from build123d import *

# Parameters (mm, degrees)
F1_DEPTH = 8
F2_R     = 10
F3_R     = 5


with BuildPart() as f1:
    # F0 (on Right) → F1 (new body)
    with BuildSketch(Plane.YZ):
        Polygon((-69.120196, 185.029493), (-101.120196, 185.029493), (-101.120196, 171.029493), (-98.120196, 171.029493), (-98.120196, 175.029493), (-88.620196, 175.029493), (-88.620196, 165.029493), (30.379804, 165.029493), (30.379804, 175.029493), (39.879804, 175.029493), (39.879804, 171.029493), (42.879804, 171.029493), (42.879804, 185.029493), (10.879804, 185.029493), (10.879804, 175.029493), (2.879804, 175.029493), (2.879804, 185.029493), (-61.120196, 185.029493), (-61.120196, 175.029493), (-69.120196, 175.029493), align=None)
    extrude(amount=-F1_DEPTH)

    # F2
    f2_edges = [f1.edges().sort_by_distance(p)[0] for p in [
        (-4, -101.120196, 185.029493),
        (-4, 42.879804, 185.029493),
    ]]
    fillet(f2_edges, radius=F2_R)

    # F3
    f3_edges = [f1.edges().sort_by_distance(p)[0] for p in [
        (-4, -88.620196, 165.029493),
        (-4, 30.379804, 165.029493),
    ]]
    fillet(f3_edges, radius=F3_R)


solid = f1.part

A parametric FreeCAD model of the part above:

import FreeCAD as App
import Part
import Sketcher


def edges_at(feature, points):
    """Names of the edges that pass closest to the given points."""
    edges = feature.Shape.Edges
    near = lambda p: min(range(len(edges)), key=lambda i: edges[i].distToShape(Part.Vertex(*p))[0])
    return sorted({f"Edge{near(p) + 1}" for p in points})


def add_polygon(sketch, points):
    """Adds a closed chain of lines whose ends are joined by coincident constraints."""
    first, n = sketch.GeometryCount, len(points)
    for a, b in zip(points, points[1:] + points[:1]):
        sketch.addGeometry(Part.LineSegment(App.Vector(*a, 0), App.Vector(*b, 0)), False)
    for i in range(n):
        sketch.addConstraint(Sketcher.Constraint("Coincident", first + i, 2, first + (i + 1) % n, 1))

doc = App.newDocument("Part")
body = doc.addObject("PartDesign::Body", "Body")

sketch1 = body.newObject("Sketcher::SketchObject", "Sketch")
sketch1.AttachmentSupport = (doc.getObject("YZ_Plane"), [""])
sketch1.MapMode = "FlatFace"
add_polygon(sketch1, [(-69.1, 185), (-101.1, 185), (-101.1, 171), (-98.1, 171), (-98.1, 175), (-88.6, 175), (-88.6, 165), (30.4, 165), (30.4, 175), (39.9, 175), (39.9, 171), (42.9, 171), (42.9, 185), (10.9, 185), (10.9, 175), (2.9, 175), (2.9, 185), (-61.1, 185), (-61.1, 175), (-69.1, 175)])
sketch1.addConstraint(Sketcher.Constraint("Horizontal", 0))
sketch1.addConstraint(Sketcher.Constraint("Vertical", 1))
sketch1.addConstraint(Sketcher.Constraint("Horizontal", 2))
sketch1.addConstraint(Sketcher.Constraint("Vertical", 3))
sketch1.addConstraint(Sketcher.Constraint("Horizontal", 4))
sketch1.addConstraint(Sketcher.Constraint("Vertical", 5))
sketch1.addConstraint(Sketcher.Constraint("Horizontal", 6))
sketch1.addConstraint(Sketcher.Constraint("Vertical", 7))
sketch1.addConstraint(Sketcher.Constraint("Horizontal", 8))
sketch1.addConstraint(Sketcher.Constraint("Vertical", 9))
sketch1.addConstraint(Sketcher.Constraint("Horizontal", 10))
sketch1.addConstraint(Sketcher.Constraint("Vertical", 11))
sketch1.addConstraint(Sketcher.Constraint("Horizontal", 12))
sketch1.addConstraint(Sketcher.Constraint("Vertical", 13))
sketch1.addConstraint(Sketcher.Constraint("Horizontal", 14))
sketch1.addConstraint(Sketcher.Constraint("Vertical", 15))
sketch1.addConstraint(Sketcher.Constraint("Horizontal", 16))
sketch1.addConstraint(Sketcher.Constraint("Vertical", 17))
sketch1.addConstraint(Sketcher.Constraint("Horizontal", 18))
sketch1.addConstraint(Sketcher.Constraint("Vertical", 19))
sketch1.addConstraint(Sketcher.Constraint("Horizontal", 4, 2, 7, 2))
sketch1.addConstraint(Sketcher.Constraint("Horizontal", 2, 2, 9, 2))
sketch1.addConstraint(Sketcher.Constraint("Horizontal", 0, 2, 11, 2))
sketch1.addConstraint(Sketcher.Constraint("Horizontal", 8, 2, 13, 2))
sketch1.addConstraint(Sketcher.Constraint("Horizontal", 12, 2, 15, 2))
sketch1.addConstraint(Sketcher.Constraint("Horizontal", 14, 2, 17, 2))
sketch1.addConstraint(Sketcher.Constraint("Equal", 4, 8))
sketch1.addConstraint(Sketcher.Constraint("Equal", 2, 10))
sketch1.addConstraint(Sketcher.Constraint("Equal", 0, 12))
sketch1.addConstraint(Sketcher.Constraint("Equal", 14, 18))
sketch1.addConstraint(Sketcher.Constraint("Equal", 7, 13))
sketch1.addConstraint(Sketcher.Constraint("DistanceX", 0, 2, 0, 1, 32.0))
sketch1.addConstraint(Sketcher.Constraint("DistanceX", 2, 1, 2, 2, 3.0))
sketch1.addConstraint(Sketcher.Constraint("DistanceX", 6, 1, 6, 2, 119.0))
sketch1.addConstraint(Sketcher.Constraint("DistanceX", 14, 2, 14, 1, 8.0))
sketch1.addConstraint(Sketcher.Constraint("DistanceX", 16, 2, 16, 1, 64.0))
sketch1.addConstraint(Sketcher.Constraint("DistanceY", 1, 2, 1, 1, 14.0))
sketch1.addConstraint(Sketcher.Constraint("DistanceY", 3, 1, 3, 2, 4.0))
sketch1.addConstraint(Sketcher.Constraint("DistanceX", 0, 2, -1, 1, 101.120196))
sketch1.addConstraint(Sketcher.Constraint("DistanceY", -1, 1, 0, 2, 185.029493))
pad1 = body.newObject("PartDesign::Pad", "Pad")
pad1.Profile = sketch1
pad1.Length = 8
pad1.Reversed = True
doc.recompute()

fillet = body.newObject("PartDesign::Fillet", "Fillet")
fillet.Base = (pad1, edges_at(pad1, [(-4, -101.12, 185.029), (-4, 42.88, 185.029)]))
fillet.Radius = 10
doc.recompute()

fillet2 = body.newObject("PartDesign::Fillet", "Fillet001")
fillet2.Base = (fillet, edges_at(fillet, [(-4, -88.62, 165.029), (-4, 30.38, 165.029)]))
fillet2.Radius = 5

doc.recompute()
